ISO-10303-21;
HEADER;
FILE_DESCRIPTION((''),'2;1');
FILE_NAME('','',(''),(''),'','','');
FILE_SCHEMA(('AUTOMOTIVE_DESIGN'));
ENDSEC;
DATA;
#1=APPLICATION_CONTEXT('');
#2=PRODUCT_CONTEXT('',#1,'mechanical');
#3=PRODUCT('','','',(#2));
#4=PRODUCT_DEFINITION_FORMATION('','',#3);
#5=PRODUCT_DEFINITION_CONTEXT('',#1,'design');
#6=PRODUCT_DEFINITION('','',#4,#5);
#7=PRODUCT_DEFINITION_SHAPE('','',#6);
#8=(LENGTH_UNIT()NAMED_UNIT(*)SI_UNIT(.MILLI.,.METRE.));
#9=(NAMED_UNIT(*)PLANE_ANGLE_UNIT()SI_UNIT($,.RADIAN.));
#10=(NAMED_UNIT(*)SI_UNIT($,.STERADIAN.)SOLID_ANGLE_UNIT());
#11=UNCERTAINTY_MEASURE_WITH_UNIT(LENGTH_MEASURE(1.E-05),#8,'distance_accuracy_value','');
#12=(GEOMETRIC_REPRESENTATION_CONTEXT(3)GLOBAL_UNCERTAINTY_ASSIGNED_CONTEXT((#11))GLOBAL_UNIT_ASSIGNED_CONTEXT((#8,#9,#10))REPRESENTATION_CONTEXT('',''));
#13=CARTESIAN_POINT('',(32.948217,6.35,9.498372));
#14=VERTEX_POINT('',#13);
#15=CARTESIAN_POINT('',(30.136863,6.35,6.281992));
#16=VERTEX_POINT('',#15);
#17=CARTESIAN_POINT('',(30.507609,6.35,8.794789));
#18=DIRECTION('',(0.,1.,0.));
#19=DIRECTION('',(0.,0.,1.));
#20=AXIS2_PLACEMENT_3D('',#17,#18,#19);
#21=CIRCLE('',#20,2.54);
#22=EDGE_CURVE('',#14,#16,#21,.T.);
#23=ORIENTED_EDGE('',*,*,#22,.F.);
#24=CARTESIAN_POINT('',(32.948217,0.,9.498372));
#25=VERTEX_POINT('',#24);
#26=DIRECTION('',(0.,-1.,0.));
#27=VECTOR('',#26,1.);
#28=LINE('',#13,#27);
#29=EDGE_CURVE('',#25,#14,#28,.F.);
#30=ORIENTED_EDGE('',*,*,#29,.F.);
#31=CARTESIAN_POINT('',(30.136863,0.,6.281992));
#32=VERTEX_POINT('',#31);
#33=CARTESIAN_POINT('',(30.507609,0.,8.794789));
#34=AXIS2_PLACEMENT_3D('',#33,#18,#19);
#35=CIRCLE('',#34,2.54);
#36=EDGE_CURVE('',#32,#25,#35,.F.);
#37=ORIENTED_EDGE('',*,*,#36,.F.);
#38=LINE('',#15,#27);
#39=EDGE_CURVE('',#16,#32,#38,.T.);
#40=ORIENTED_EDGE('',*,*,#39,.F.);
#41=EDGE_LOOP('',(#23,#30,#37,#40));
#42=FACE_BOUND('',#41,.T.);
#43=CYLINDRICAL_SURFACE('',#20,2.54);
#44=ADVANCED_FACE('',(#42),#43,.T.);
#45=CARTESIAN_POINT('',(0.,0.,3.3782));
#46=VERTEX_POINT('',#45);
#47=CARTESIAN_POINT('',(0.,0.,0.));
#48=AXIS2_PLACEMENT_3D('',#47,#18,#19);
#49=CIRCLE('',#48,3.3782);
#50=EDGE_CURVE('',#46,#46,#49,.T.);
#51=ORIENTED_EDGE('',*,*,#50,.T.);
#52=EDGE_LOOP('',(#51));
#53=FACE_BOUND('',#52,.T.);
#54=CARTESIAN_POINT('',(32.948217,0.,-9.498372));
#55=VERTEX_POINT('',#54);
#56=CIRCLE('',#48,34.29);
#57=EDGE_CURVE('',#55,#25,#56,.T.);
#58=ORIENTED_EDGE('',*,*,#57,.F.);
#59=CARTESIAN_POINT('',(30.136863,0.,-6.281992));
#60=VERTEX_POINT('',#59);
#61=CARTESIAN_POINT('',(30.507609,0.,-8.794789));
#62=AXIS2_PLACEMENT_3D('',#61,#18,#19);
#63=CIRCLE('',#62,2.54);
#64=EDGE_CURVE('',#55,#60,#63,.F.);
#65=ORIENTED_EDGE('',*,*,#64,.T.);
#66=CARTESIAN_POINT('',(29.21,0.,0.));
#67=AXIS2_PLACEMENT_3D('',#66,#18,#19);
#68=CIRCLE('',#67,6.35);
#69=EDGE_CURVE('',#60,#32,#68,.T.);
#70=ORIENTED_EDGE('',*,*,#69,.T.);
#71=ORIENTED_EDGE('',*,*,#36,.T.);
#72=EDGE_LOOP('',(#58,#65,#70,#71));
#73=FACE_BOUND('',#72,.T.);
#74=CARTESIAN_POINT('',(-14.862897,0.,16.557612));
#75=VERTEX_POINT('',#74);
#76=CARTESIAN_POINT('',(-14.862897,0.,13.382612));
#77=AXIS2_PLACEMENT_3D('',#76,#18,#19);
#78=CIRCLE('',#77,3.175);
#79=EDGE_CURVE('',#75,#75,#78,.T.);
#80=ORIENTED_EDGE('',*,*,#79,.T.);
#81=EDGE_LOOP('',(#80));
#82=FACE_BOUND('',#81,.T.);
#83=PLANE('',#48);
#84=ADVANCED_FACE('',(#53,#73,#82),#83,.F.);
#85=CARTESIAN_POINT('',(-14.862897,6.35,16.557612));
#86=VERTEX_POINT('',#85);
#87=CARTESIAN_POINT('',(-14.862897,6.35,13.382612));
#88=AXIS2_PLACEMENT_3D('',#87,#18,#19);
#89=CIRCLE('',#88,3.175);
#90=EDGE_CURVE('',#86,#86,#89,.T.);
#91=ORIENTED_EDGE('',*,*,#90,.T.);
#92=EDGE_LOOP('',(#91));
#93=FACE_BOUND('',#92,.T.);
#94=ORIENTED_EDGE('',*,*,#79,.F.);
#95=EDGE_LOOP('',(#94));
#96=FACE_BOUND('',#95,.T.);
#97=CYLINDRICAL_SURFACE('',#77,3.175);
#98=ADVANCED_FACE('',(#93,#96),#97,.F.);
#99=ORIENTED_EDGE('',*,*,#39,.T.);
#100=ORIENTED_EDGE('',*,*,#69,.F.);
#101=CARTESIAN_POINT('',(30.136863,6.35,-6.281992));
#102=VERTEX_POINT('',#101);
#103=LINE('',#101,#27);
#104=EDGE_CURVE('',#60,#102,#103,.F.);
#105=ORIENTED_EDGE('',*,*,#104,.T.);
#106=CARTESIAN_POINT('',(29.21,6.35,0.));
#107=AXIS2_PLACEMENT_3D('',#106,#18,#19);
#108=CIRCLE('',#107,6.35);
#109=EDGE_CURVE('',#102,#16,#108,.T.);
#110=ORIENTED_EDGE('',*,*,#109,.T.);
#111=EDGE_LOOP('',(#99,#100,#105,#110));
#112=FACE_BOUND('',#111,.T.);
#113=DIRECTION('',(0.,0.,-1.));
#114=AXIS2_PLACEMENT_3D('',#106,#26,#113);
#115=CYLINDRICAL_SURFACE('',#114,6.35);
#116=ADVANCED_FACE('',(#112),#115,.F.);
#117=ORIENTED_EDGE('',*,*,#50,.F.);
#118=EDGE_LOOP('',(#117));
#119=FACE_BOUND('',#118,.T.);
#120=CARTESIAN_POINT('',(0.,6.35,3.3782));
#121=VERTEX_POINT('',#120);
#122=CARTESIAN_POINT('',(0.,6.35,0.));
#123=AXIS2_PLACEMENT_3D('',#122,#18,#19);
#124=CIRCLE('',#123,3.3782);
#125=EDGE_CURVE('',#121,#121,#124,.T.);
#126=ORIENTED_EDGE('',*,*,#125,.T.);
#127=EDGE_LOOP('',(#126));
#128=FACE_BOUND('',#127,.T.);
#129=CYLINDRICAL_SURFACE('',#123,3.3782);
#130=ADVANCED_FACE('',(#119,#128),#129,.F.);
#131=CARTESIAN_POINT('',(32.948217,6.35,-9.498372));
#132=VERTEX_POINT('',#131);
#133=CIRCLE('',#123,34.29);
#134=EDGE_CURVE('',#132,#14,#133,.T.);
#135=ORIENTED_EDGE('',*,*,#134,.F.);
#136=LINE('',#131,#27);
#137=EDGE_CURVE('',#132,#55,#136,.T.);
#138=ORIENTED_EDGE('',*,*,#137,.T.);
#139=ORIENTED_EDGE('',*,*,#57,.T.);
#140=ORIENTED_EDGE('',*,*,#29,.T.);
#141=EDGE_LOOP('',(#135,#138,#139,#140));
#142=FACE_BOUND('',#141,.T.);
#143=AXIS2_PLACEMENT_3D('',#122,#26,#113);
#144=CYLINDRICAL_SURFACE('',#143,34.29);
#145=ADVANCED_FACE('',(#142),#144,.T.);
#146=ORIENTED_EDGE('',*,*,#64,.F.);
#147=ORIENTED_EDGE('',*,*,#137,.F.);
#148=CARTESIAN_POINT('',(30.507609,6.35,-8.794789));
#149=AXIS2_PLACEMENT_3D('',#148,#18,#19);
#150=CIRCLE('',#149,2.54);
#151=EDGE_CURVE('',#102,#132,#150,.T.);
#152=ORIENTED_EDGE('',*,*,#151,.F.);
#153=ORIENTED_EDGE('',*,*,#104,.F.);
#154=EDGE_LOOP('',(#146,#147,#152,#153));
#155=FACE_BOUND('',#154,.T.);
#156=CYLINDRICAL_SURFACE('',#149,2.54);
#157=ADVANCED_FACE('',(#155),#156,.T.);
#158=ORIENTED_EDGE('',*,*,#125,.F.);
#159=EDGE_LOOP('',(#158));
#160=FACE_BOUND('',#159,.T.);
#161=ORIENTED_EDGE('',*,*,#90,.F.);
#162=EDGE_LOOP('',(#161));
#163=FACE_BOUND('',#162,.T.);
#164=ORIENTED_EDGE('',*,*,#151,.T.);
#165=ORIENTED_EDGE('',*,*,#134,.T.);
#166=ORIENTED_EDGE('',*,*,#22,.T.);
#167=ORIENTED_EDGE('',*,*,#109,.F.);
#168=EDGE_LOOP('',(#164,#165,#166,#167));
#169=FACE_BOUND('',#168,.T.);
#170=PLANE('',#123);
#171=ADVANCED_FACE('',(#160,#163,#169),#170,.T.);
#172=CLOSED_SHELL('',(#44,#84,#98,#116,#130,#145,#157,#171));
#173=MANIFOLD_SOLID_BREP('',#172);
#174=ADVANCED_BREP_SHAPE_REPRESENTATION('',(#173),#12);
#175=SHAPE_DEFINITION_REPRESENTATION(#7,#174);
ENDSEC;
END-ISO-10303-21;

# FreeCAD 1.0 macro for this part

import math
import FreeCAD as App
import Part
import Sketcher

V = App.Vector
Q = App.Units.Quantity


def edges_at(feature, points):
    """Names of the edges that pass closest to the given points."""
    edges = feature.Shape.Edges
    near = lambda p: min(range(len(edges)), key=lambda i: edges[i].distToShape(Part.Vertex(*p))[0])
    return sorted({f"Edge{near(p) + 1}" for p in points})

doc = App.newDocument("Part")
params = doc.addObject("Spreadsheet::Sheet", "Params")
for row, (alias, value) in enumerate([
    ("sketch1_radius", "0.25 in"),
    ("sketch1_radius2", "1.35 in"),
    ("pad1_length", "0.25 in"),
    ("sketch2_diameter", "0.266 in"),
    ("hole_diameter", "0.266 in"),
    ("fillet_radius", "0.1 in"),
    ("sketch3_diameter", "0.25 in"),
], start=1):
    params.set(f"A{row}", alias)
    params.set(f"B{row}", "=" + value)
    params.setAlias(f"B{row}", alias)

body = doc.addObject("PartDesign::Body", "Body")

sketch1 = body.newObject("Sketcher::SketchObject", "Sketch")
sketch1.AttachmentSupport = (doc.getObject("XZ_Plane"), [""])
sketch1.MapMode = "FlatFace"
sketch1.addGeometry([
    Part.ArcOfCircle(Part.Circle(V(29, 0, 0), V(0, 0, 1), 6), math.radians(40), math.radians(320)),
    Part.ArcOfCircle(Part.Circle(V(0, 0, 0), V(0, 0, 1), 34), math.radians(7), math.radians(353)),
], False)
sketch1.addConstraint([
    Sketcher.Constraint("Coincident", 0, 1, 1, 1),
    Sketcher.Constraint("Coincident", 1, 2, 0, 2),
    Sketcher.Constraint("Coincident", 1, 3, -1, 1),
    Sketcher.Constraint("PointOnObject", 0, 3, -1),
    Sketcher.Constraint("Radius", 0, Q("0.25 in")),
    Sketcher.Constraint("Radius", 1, Q("1.35 in")),
    Sketcher.Constraint("DistanceX", -1, 1, 0, 3, Q("1.15 in")),
])
sketch1.setExpression("Constraints[4]", "Params.sketch1_radius")
sketch1.setExpression("Constraints[5]", "Params.sketch1_radius2")
pad1 = body.newObject("PartDesign::Pad", "Pad")
pad1.Profile = sketch1
pad1.setExpression("Length", "Params.pad1_length")
pad1.Reversed = True

sketch2 = body.newObject("Sketcher::SketchObject", "Sketch001")
sketch2.AttachmentSupport = (doc.getObject("XZ_Plane"), [""])
sketch2.MapMode = "FlatFace"
sketch2.AttachmentOffset = App.Placement(V(0, 0, -0.25 * 25.4), App.Rotation())
sketch2.addGeometry(Part.Circle(V(0, 0, 0), V(0, 0, 1), 3.4), False)
sketch2.addConstraint([
    Sketcher.Constraint("Coincident", 0, 3, -1, 1),
    Sketcher.Constraint("Diameter", 0, Q("0.266 in")),
])
sketch2.setExpression("Constraints[1]", "Params.sketch2_diameter")
doc.recompute()
hole = body.newObject("PartDesign::Hole", "Hole")
hole.Profile = sketch2
hole.ThreadType = "None"
hole.setExpression("Diameter", "Params.hole_diameter")
hole.DepthType = "ThroughAll"
hole.Reversed = True
doc.recompute()

fillet = body.newObject("PartDesign::Fillet", "Fillet")
fillet.Base = (hole, edges_at(hole, [(34.042, 3.175, 4.121), (34.042, 3.175, -4.121)]))
fillet.setExpression("Radius", "Params.fillet_radius")

sketch3 = body.newObject("Sketcher::SketchObject", "Sketch002")
sketch3.AttachmentSupport = (doc.getObject("XZ_Plane"), [""])
sketch3.MapMode = "FlatFace"
sketch3.AttachmentOffset = App.Placement(V(0, 0, -0.25 * 25.4), App.Rotation())
sketch3.addGeometry(Part.Circle(V(-14.9, 13.4, 0), V(0, 0, 1), 3.2), False)
sketch3.addConstraint([
    Sketcher.Constraint("Diameter", 0, Q("0.25 in")),
    Sketcher.Constraint("DistanceX", 0, 3, -1, 1, Q("14.862897 mm")),
    Sketcher.Constraint("DistanceY", -1, 1, 0, 3, Q("13.382612 mm")),
])
sketch3.setExpression("Constraints[0]", "Params.sketch3_diameter")
pocket1 = body.newObject("PartDesign::Pocket", "Pocket")
pocket1.Profile = sketch3
pocket1.Type = "ThroughAll"
pocket1.Reversed = True

doc.recompute()
